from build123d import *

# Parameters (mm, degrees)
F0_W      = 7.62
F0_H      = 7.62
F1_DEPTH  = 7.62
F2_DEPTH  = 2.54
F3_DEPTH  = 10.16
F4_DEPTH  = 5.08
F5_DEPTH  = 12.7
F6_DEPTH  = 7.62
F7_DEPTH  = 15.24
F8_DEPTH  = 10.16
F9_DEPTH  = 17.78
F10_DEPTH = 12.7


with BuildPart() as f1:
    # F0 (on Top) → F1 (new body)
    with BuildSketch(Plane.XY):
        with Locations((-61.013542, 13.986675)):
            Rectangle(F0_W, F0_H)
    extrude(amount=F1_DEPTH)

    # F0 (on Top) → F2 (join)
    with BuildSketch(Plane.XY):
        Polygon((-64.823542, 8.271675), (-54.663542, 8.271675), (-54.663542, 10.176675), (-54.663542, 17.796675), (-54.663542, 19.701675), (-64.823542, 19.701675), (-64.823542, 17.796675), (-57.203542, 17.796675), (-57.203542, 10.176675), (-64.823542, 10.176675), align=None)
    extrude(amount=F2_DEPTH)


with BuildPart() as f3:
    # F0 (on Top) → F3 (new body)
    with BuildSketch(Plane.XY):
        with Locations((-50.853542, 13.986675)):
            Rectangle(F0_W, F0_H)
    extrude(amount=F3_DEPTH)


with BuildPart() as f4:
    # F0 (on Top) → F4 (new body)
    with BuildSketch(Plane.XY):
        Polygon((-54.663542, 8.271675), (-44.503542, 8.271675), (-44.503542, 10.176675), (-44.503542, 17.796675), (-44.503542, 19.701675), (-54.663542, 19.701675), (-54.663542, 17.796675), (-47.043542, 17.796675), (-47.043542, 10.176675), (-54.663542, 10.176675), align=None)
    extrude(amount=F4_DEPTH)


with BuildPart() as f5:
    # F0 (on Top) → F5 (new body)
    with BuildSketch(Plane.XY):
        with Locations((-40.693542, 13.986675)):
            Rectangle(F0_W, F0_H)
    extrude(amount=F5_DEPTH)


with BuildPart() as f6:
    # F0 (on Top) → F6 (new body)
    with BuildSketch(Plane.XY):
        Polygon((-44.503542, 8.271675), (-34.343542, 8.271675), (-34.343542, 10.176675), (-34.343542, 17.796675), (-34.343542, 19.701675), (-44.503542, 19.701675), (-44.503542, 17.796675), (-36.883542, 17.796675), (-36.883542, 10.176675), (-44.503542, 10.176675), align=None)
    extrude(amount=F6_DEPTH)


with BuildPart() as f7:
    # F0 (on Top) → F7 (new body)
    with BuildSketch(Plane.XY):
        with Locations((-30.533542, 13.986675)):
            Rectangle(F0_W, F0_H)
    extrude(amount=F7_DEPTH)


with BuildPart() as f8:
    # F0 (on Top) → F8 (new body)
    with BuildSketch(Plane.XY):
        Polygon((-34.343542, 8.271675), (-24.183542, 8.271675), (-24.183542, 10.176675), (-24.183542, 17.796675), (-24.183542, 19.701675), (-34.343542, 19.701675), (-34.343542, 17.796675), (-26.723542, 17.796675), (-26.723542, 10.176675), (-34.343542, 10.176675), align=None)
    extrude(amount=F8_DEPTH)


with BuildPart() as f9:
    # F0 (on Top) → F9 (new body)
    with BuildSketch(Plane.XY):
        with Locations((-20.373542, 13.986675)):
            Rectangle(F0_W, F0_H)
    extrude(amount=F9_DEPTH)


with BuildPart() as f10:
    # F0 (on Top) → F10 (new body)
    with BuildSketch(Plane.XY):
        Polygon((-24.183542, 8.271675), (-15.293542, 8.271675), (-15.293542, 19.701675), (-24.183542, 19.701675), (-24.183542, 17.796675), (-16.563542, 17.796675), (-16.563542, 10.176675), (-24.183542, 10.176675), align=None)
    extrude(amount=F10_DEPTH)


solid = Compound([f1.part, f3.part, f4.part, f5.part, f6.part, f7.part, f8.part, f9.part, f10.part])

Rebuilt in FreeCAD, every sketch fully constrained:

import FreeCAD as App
import Part
import Sketcher
Q = App.Units.Quantity


def add_polygon(sketch, points):
    """Adds a closed chain of lines whose ends are joined by coincident constraints."""
    first, n = sketch.GeometryCount, len(points)
    for a, b in zip(points, points[1:] + points[:1]):
        sketch.addGeometry(Part.LineSegment(App.Vector(*a, 0), App.Vector(*b, 0)), False)
    for i in range(n):
        sketch.addConstraint(Sketcher.Constraint("Coincident", first + i, 2, first + (i + 1) % n, 1))

doc = App.newDocument("Part")
body = doc.addObject("PartDesign::Body", "Body")

# Sketch on XY plane
sketch1 = body.newObject("Sketcher::SketchObject", "Sketch")
sketch1.AttachmentSupport = (doc.getObject("XY_Plane"), [""])
sketch1.MapMode = "FlatFace"
add_polygon(sketch1, [(-65, 18), (-65, 10), (-57, 10), (-57, 18)])  # lines 0-3
sketch1.addConstraint(Sketcher.Constraint("Vertical", 0))
sketch1.addConstraint(Sketcher.Constraint("Horizontal", 1))
sketch1.addConstraint(Sketcher.Constraint("Vertical", 2))
sketch1.addConstraint(Sketcher.Constraint("Horizontal", 3))
sketch1.addConstraint(Sketcher.Constraint("Equal", 3, 0))
sketch1.addConstraint(Sketcher.Constraint("DistanceX", 1, 1, 1, 2, Q("0.3 in")))
sketch1.addConstraint(Sketcher.Constraint("DistanceX", 0, 2, -1, 1, 64.823542))
sketch1.addConstraint(Sketcher.Constraint("DistanceY", -1, 1, 0, 2, 10.176675))
pad1 = body.newObject("PartDesign::Pad", "Pad")
pad1.Profile = sketch1
pad1.Length = Q("0.3 in")

# Sketch on XY plane
sketch2 = body.newObject("Sketcher::SketchObject", "Sketch001")
sketch2.AttachmentSupport = (doc.getObject("XY_Plane"), [""])
sketch2.MapMode = "FlatFace"
add_polygon(sketch2, [(-64.8, 8.3), (-54.7, 8.3), (-54.7, 19.7), (-64.8, 19.7), (-64.8, 17.8), (-57.2, 17.8), (-57.2, 10.2), (-64.8, 10.2)])  # lines 0-7
sketch2.addConstraint(Sketcher.Constraint("Horizontal", 0))
sketch2.addConstraint(Sketcher.Constraint("Vertical", 1))
sketch2.addConstraint(Sketcher.Constraint("Horizontal", 2))
sketch2.addConstraint(Sketcher.Constraint("Vertical", 3))
sketch2.addConstraint(Sketcher.Constraint("Horizontal", 4))
sketch2.addConstraint(Sketcher.Constraint("Vertical", 5))
sketch2.addConstraint(Sketcher.Constraint("Horizontal", 6))
sketch2.addConstraint(Sketcher.Constraint("Vertical", 7))
sketch2.addConstraint(Sketcher.Constraint("Vertical", 3, 2, 6, 2))
sketch2.addConstraint(Sketcher.Constraint("Equal", 6, 5))
sketch2.addConstraint(Sketcher.Constraint("Equal", 3, 7))
sketch2.addConstraint(Sketcher.Constraint("DistanceX", 0, 1, 0, 2, Q("0.4 in")))
sketch2.addConstraint(Sketcher.Constraint("DistanceX", 4, 1, 4, 2, Q("0.3 in")))
sketch2.addConstraint(Sketcher.Constraint("DistanceY", 1, 1, 1, 2, Q("0.45 in")))
sketch2.addConstraint(Sketcher.Constraint("DistanceX", 0, 2, -1, 1, 54.663542))
sketch2.addConstraint(Sketcher.Constraint("DistanceY", -1, 1, 0, 2, 8.271675))
pad2 = body.newObject("PartDesign::Pad", "Pad001")
pad2.Profile = sketch2
pad2.Length = Q("0.1 in")
body2 = doc.addObject("PartDesign::Body", "Body001")

# Sketch on XY plane
sketch3 = body2.newObject("Sketcher::SketchObject", "Sketch002")
sketch3.AttachmentSupport = (doc.getObject("XY_Plane001"), [""])
sketch3.MapMode = "FlatFace"
add_polygon(sketch3, [(-55, 18), (-55, 10), (-47, 10), (-47, 18)])  # lines 0-3
sketch3.addConstraint(Sketcher.Constraint("Vertical", 0))
sketch3.addConstraint(Sketcher.Constraint("Horizontal", 1))
sketch3.addConstraint(Sketcher.Constraint("Vertical", 2))
sketch3.addConstraint(Sketcher.Constraint("Horizontal", 3))
sketch3.addConstraint(Sketcher.Constraint("Equal", 3, 0))
sketch3.addConstraint(Sketcher.Constraint("DistanceX", 1, 1, 1, 2, Q("0.3 in")))
sketch3.addConstraint(Sketcher.Constraint("DistanceX", 0, 2, -1, 1, 54.663542))
sketch3.addConstraint(Sketcher.Constraint("DistanceY", -1, 1, 0, 2, 10.176675))
pad3 = body2.newObject("PartDesign::Pad", "Pad002")
pad3.Profile = sketch3
pad3.Length = Q("0.4 in")
body3 = doc.addObject("PartDesign::Body", "Body002")

# Sketch on XY plane
sketch4 = body3.newObject("Sketcher::SketchObject", "Sketch003")
sketch4.AttachmentSupport = (doc.getObject("XY_Plane002"), [""])
sketch4.MapMode = "FlatFace"
add_polygon(sketch4, [(-54.7, 8.3), (-44.5, 8.3), (-44.5, 19.7), (-54.7, 19.7), (-54.7, 17.8), (-47, 17.8), (-47, 10.2), (-54.7, 10.2)])  # lines 0-7
sketch4.addConstraint(Sketcher.Constraint("Horizontal", 0))
sketch4.addConstraint(Sketcher.Constraint("Vertical", 1))
sketch4.addConstraint(Sketcher.Constraint("Horizontal", 2))
sketch4.addConstraint(Sketcher.Constraint("Vertical", 3))
sketch4.addConstraint(Sketcher.Constraint("Horizontal", 4))
sketch4.addConstraint(Sketcher.Constraint("Vertical", 5))
sketch4.addConstraint(Sketcher.Constraint("Horizontal", 6))
sketch4.addConstraint(Sketcher.Constraint("Vertical", 7))
sketch4.addConstraint(Sketcher.Constraint("Vertical", 3, 2, 6, 2))
sketch4.addConstraint(Sketcher.Constraint("Equal", 6, 5))
sketch4.addConstraint(Sketcher.Constraint("Equal", 3, 7))
sketch4.addConstraint(Sketcher.Constraint("DistanceX", 0, 1, 0, 2, Q("0.4 in")))
sketch4.addConstraint(Sketcher.Constraint("DistanceX", 4, 1, 4, 2, Q("0.3 in")))
sketch4.addConstraint(Sketcher.Constraint("DistanceY", 1, 1, 1, 2, Q("0.45 in")))
sketch4.addConstraint(Sketcher.Constraint("DistanceX", 0, 2, -1, 1, 44.503542))
sketch4.addConstraint(Sketcher.Constraint("DistanceY", -1, 1, 0, 2, 8.271675))
pad4 = body3.newObject("PartDesign::Pad", "Pad003")
pad4.Profile = sketch4
pad4.Length = Q("0.2 in")
body4 = doc.addObject("PartDesign::Body", "Body003")

# Sketch on XY plane
sketch5 = body4.newObject("Sketcher::SketchObject", "Sketch004")
sketch5.AttachmentSupport = (doc.getObject("XY_Plane003"), [""])
sketch5.MapMode = "FlatFace"
add_polygon(sketch5, [(-45, 18), (-45, 10), (-37, 10), (-37, 18)])  # lines 0-3
sketch5.addConstraint(Sketcher.Constraint("Vertical", 0))
sketch5.addConstraint(Sketcher.Constraint("Horizontal", 1))
sketch5.addConstraint(Sketcher.Constraint("Vertical", 2))
sketch5.addConstraint(Sketcher.Constraint("Horizontal", 3))
sketch5.addConstraint(Sketcher.Constraint("Equal", 3, 0))
sketch5.addConstraint(Sketcher.Constraint("DistanceX", 1, 1, 1, 2, Q("0.3 in")))
sketch5.addConstraint(Sketcher.Constraint("DistanceX", 1, 2, -1, 1, 36.883542))
sketch5.addConstraint(Sketcher.Constraint("DistanceY", -1, 1, 0, 2, 10.176675))
pad5 = body4.newObject("PartDesign::Pad", "Pad004")
pad5.Profile = sketch5
pad5.Length = Q("0.5 in")
body5 = doc.addObject("PartDesign::Body", "Body004")

# Sketch on XY plane
sketch6 = body5.newObject("Sketcher::SketchObject", "Sketch005")
sketch6.AttachmentSupport = (doc.getObject("XY_Plane004"), [""])
sketch6.MapMode = "FlatFace"
add_polygon(sketch6, [(-44.5, 8.3), (-34.3, 8.3), (-34.3, 19.7), (-44.5, 19.7), (-44.5, 17.8), (-36.9, 17.8), (-36.9, 10.2), (-44.5, 10.2)])  # lines 0-7
sketch6.addConstraint(Sketcher.Constraint("Horizontal", 0))
sketch6.addConstraint(Sketcher.Constraint("Vertical", 1))
sketch6.addConstraint(Sketcher.Constraint("Horizontal", 2))
sketch6.addConstraint(Sketcher.Constraint("Vertical", 3))
sketch6.addConstraint(Sketcher.Constraint("Horizontal", 4))
sketch6.addConstraint(Sketcher.Constraint("Vertical", 5))
sketch6.addConstraint(Sketcher.Constraint("Horizontal", 6))
sketch6.addConstraint(Sketcher.Constraint("Vertical", 7))
sketch6.addConstraint(Sketcher.Constraint("Vertical", 3, 2, 6, 2))
sketch6.addConstraint(Sketcher.Constraint("Equal", 6, 5))
sketch6.addConstraint(Sketcher.Constraint("Equal", 3, 7))
sketch6.addConstraint(Sketcher.Constraint("DistanceX", 0, 1, 0, 2, Q("0.4 in")))
sketch6.addConstraint(Sketcher.Constraint("DistanceX", 4, 1, 4, 2, Q("0.3 in")))
sketch6.addConstraint(Sketcher.Constraint("DistanceY", 1, 1, 1, 2, Q("0.45 in")))
sketch6.addConstraint(Sketcher.Constraint("DistanceX", 4, 2, -1, 1, 36.883542))
sketch6.addConstraint(Sketcher.Constraint("DistanceY", -1, 1, 0, 2, 8.271675))
pad6 = body5.newObject("PartDesign::Pad", "Pad005")
pad6.Profile = sketch6
pad6.Length = Q("0.3 in")
body6 = doc.addObject("PartDesign::Body", "Body005")

# Sketch on XY plane
sketch7 = body6.newObject("Sketcher::SketchObject", "Sketch006")
sketch7.AttachmentSupport = (doc.getObject("XY_Plane005"), [""])
sketch7.MapMode = "FlatFace"
add_polygon(sketch7, [(-34, 18), (-34, 10), (-27, 10), (-27, 18)])  # lines 0-3
sketch7.addConstraint(Sketcher.Constraint("Vertical", 0))
sketch7.addConstraint(Sketcher.Constraint("Horizontal", 1))
sketch7.addConstraint(Sketcher.Constraint("Vertical", 2))
sketch7.addConstraint(Sketcher.Constraint("Horizontal", 3))
sketch7.addConstraint(Sketcher.Constraint("Equal", 3, 0))
sketch7.addConstraint(Sketcher.Constraint("DistanceX", 1, 1, 1, 2, Q("0.3 in")))
sketch7.addConstraint(Sketcher.Constraint("DistanceX", 1, 2, -1, 1, 26.723542))
sketch7.addConstraint(Sketcher.Constraint("DistanceY", -1, 1, 0, 2, 10.176675))
pad7 = body6.newObject("PartDesign::Pad", "Pad006")
pad7.Profile = sketch7
pad7.Length = Q("0.6 in")
body7 = doc.addObject("PartDesign::Body", "Body006")

# Sketch on XY plane
sketch8 = body7.newObject("Sketcher::SketchObject", "Sketch007")
sketch8.AttachmentSupport = (doc.getObject("XY_Plane006"), [""])
sketch8.MapMode = "FlatFace"
add_polygon(sketch8, [(-34.3, 8.3), (-24.2, 8.3), (-24.2, 19.7), (-34.3, 19.7), (-34.3, 17.8), (-26.7, 17.8), (-26.7, 10.2), (-34.3, 10.2)])  # lines 0-7
sketch8.addConstraint(Sketcher.Constraint("Horizontal", 0))
sketch8.addConstraint(Sketcher.Constraint("Vertical", 1))
sketch8.addConstraint(Sketcher.Constraint("Horizontal", 2))
sketch8.addConstraint(Sketcher.Constraint("Vertical", 3))
sketch8.addConstraint(Sketcher.Constraint("Horizontal", 4))
sketch8.addConstraint(Sketcher.Constraint("Vertical", 5))
sketch8.addConstraint(Sketcher.Constraint("Horizontal", 6))
sketch8.addConstraint(Sketcher.Constraint("Vertical", 7))
sketch8.addConstraint(Sketcher.Constraint("Vertical", 3, 2, 6, 2))
sketch8.addConstraint(Sketcher.Constraint("Equal", 6, 5))
sketch8.addConstraint(Sketcher.Constraint("Equal", 3, 7))
sketch8.addConstraint(Sketcher.Constraint("DistanceX", 0, 1, 0, 2, Q("0.4 in")))
sketch8.addConstraint(Sketcher.Constraint("DistanceX", 4, 1, 4, 2, Q("0.3 in")))
sketch8.addConstraint(Sketcher.Constraint("DistanceY", 1, 1, 1, 2, Q("0.45 in")))
sketch8.addConstraint(Sketcher.Constraint("DistanceX", 0, 2, -1, 1, 24.183542))
sketch8.addConstraint(Sketcher.Constraint("DistanceY", -1, 1, 0, 2, 8.271675))
pad8 = body7.newObject("PartDesign::Pad", "Pad007")
pad8.Profile = sketch8
pad8.Length = Q("0.4 in")
body8 = doc.addObject("PartDesign::Body", "Body007")

# Sketch on XY plane
sketch9 = body8.newObject("Sketcher::SketchObject", "Sketch008")
sketch9.AttachmentSupport = (doc.getObject("XY_Plane007"), [""])
sketch9.MapMode = "FlatFace"
add_polygon(sketch9, [(-24, 18), (-24, 10), (-17, 10), (-17, 18)])  # lines 0-3
sketch9.addConstraint(Sketcher.Constraint("Vertical", 0))
sketch9.addConstraint(Sketcher.Constraint("Horizontal", 1))
sketch9.addConstraint(Sketcher.Constraint("Vertical", 2))
sketch9.addConstraint(Sketcher.Constraint("Horizontal", 3))
sketch9.addConstraint(Sketcher.Constraint("Equal", 3, 0))
sketch9.addConstraint(Sketcher.Constraint("DistanceX", 1, 1, 1, 2, Q("0.3 in")))
sketch9.addConstraint(Sketcher.Constraint("DistanceX", 0, 2, -1, 1, 24.183542))
sketch9.addConstraint(Sketcher.Constraint("DistanceY", -1, 1, 0, 2, 10.176675))
pad9 = body8.newObject("PartDesign::Pad", "Pad008")
pad9.Profile = sketch9
pad9.Length = Q("0.7 in")
body9 = doc.addObject("PartDesign::Body", "Body008")

# Sketch on XY plane
sketch10 = body9.newObject("Sketcher::SketchObject", "Sketch009")
sketch10.AttachmentSupport = (doc.getObject("XY_Plane008"), [""])
sketch10.MapMode = "FlatFace"
add_polygon(sketch10, [(-24.2, 8.3), (-15.3, 8.3), (-15.3, 19.7), (-24.2, 19.7), (-24.2, 17.8), (-16.6, 17.8), (-16.6, 10.2), (-24.2, 10.2)])  # lines 0-7
sketch10.addConstraint(Sketcher.Constraint("Horizontal", 0))
sketch10.addConstraint(Sketcher.Constraint("Vertical", 1))
sketch10.addConstraint(Sketcher.Constraint("Horizontal", 2))
sketch10.addConstraint(Sketcher.Constraint("Vertical", 3))
sketch10.addConstraint(Sketcher.Constraint("Horizontal", 4))
sketch10.addConstraint(Sketcher.Constraint("Vertical", 5))
sketch10.addConstraint(Sketcher.Constraint("Horizontal", 6))
sketch10.addConstraint(Sketcher.Constraint("Vertical", 7))
sketch10.addConstraint(Sketcher.Constraint("Vertical", 3, 2, 6, 2))
sketch10.addConstraint(Sketcher.Constraint("Equal", 6, 5))
sketch10.addConstraint(Sketcher.Constraint("Equal", 3, 7))
sketch10.addConstraint(Sketcher.Constraint("DistanceX", 4, 1, 4, 2, Q("0.3 in")))
sketch10.addConstraint(Sketcher.Constraint("DistanceX", 0, 1, 0, 2, Q("0.35 in")))
sketch10.addConstraint(Sketcher.Constraint("DistanceY", 1, 1, 1, 2, Q("0.45 in")))
sketch10.addConstraint(Sketcher.Constraint("DistanceX", 2, 2, -1, 1, 24.183542))
sketch10.addConstraint(Sketcher.Constraint("DistanceY", -1, 1, 0, 2, 8.271675))
pad10 = body9.newObject("PartDesign::Pad", "Pad009")
pad10.Profile = sketch10
pad10.Length = Q("0.5 in")

doc.recompute()
